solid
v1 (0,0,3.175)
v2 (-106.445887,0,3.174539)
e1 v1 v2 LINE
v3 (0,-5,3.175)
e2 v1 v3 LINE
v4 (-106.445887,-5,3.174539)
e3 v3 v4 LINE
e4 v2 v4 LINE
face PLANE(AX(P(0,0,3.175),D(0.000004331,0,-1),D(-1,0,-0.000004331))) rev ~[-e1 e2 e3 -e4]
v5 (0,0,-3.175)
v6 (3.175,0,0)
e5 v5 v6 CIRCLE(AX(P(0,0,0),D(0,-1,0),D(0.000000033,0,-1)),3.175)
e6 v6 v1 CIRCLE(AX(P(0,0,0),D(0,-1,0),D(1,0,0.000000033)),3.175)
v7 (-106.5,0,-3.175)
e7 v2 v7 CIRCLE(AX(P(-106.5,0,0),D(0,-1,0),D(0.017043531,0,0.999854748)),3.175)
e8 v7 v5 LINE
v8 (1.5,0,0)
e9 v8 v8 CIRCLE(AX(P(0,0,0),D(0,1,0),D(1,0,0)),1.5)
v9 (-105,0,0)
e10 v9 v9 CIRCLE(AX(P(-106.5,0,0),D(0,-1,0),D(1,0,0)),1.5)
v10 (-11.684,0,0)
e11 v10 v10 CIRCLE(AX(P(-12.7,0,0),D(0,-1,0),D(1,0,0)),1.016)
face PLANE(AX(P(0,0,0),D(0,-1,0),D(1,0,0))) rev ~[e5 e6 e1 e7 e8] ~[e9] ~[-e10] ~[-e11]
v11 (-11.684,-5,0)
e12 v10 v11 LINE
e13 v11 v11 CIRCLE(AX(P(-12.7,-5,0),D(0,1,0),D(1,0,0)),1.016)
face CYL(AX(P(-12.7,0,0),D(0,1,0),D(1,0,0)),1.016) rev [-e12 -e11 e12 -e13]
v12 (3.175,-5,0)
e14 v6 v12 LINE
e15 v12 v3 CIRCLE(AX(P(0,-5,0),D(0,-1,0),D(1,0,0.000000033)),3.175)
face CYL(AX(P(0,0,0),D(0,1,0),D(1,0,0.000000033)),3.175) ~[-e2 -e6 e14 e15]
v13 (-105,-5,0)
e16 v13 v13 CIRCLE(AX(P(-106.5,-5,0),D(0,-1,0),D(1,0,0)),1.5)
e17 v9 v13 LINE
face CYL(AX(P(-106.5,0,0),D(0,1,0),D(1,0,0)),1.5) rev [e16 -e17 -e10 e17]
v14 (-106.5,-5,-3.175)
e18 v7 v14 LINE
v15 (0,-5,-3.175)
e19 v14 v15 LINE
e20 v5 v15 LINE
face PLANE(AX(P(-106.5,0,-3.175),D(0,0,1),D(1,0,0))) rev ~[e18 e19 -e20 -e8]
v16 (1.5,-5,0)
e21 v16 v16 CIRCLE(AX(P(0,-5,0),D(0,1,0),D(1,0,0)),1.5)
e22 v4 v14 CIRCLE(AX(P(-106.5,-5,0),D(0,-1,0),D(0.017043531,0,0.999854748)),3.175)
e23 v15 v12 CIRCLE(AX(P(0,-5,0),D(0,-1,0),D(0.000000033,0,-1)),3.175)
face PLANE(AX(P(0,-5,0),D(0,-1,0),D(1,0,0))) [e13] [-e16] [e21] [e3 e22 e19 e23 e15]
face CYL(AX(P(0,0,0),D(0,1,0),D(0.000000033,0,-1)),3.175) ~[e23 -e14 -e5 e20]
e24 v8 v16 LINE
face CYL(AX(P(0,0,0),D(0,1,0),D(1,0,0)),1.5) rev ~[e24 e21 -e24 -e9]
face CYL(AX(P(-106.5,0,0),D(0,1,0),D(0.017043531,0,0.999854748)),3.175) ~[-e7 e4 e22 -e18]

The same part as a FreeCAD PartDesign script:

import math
import FreeCAD as App
import Part
import Sketcher
Q = App.Units.Quantity

doc = App.newDocument("Part")
body = doc.addObject("PartDesign::Body", "Body")

# Sketch on XZ plane
sketch1 = body.newObject("Sketcher::SketchObject", "Sketch")
sketch1.AttachmentSupport = (doc.getObject("XZ_Plane"), [""])
sketch1.MapMode = "FlatFace"
sketch1.addGeometry([
    Part.LineSegment(App.Vector(-106.5, -3.2, 0), App.Vector(0, -3.2, 0)),  # 0
    Part.ArcOfCircle(Part.Circle(App.Vector(0, 0, 0), App.Vector(0, 0, 1), 3.2), math.radians(-90), math.radians(0)),  # 1
    Part.ArcOfCircle(Part.Circle(App.Vector(0, 0, 0), App.Vector(0, 0, 1), 3.2), math.radians(0), math.radians(90)),  # 2
    Part.LineSegment(App.Vector(0, 3.2, 0), App.Vector(-106.4, 3.2, 0)),  # 3
    Part.ArcOfCircle(Part.Circle(App.Vector(-106.5, 0, 0), App.Vector(0, 0, 1), 3.2), math.radians(89), math.radians(270)),  # 4
    Part.Circle(App.Vector(-106.5, 0, 0), App.Vector(0, 0, 1), 1.5),  # 5
    Part.Circle(App.Vector(0, 0, 0), App.Vector(0, 0, 1), 1.5),  # 6
], False)
sketch1.addConstraint([
    Sketcher.Constraint("Tangent", 0, 2, 1, 1),
    Sketcher.Constraint("Tangent", 1, 2, 2, 1),
    Sketcher.Constraint("Coincident", 2, 2, 3, 1),
    Sketcher.Constraint("Coincident", 3, 2, 4, 1),
    Sketcher.Constraint("Tangent", 4, 2, 0, 1),
    Sketcher.Constraint("Horizontal", 0),
    Sketcher.Constraint("Coincident", 1, 3, -1, 1),
    Sketcher.Constraint("Coincident", 6, 3, -1, 1),
    Sketcher.Constraint("Coincident", 5, 3, 4, 3),
    Sketcher.Constraint("Equal", 1, 2),
    Sketcher.Constraint("Equal", 2, 4),
    Sketcher.Constraint("Equal", 5, 6),
    Sketcher.Constraint("PointOnObject", 1, 2, -1),
    Sketcher.Constraint("PointOnObject", 2, 2, -2),
    Sketcher.Constraint("Diameter", 5, Q("3 mm")),
    Sketcher.Constraint("DistanceX", 0, 1, 0, 2, Q("106.5 mm")),
    Sketcher.Constraint("Radius", 1, Q("3.175 mm")),
    Sketcher.Constraint("DistanceY", -1, 1, 3, 2, Q("3.174539 mm")),
])
pad1 = body.newObject("PartDesign::Pad", "Pad")
pad1.Profile = sketch1
pad1.Length = 5

# Sketch on XZ plane
sketch2 = body.newObject("Sketcher::SketchObject", "Sketch001")
sketch2.AttachmentSupport = (doc.getObject("XZ_Plane"), [""])
sketch2.MapMode = "FlatFace"
sketch2.addGeometry(Part.Circle(App.Vector(-12.7, 0, 0), App.Vector(0, 0, 1), 1), False)
sketch2.addConstraint([
    Sketcher.Constraint("PointOnObject", 0, 3, -1),
    Sketcher.Constraint("Diameter", 0, Q("2.032 mm")),
    Sketcher.Constraint("DistanceX", 0, 3, -1, 1, Q("12.7 mm")),
])
pocket1 = body.newObject("PartDesign::Pocket", "Pocket")
pocket1.Profile = sketch2
pocket1.Length = 25.4
pocket1.Reversed = True

doc.recompute()
